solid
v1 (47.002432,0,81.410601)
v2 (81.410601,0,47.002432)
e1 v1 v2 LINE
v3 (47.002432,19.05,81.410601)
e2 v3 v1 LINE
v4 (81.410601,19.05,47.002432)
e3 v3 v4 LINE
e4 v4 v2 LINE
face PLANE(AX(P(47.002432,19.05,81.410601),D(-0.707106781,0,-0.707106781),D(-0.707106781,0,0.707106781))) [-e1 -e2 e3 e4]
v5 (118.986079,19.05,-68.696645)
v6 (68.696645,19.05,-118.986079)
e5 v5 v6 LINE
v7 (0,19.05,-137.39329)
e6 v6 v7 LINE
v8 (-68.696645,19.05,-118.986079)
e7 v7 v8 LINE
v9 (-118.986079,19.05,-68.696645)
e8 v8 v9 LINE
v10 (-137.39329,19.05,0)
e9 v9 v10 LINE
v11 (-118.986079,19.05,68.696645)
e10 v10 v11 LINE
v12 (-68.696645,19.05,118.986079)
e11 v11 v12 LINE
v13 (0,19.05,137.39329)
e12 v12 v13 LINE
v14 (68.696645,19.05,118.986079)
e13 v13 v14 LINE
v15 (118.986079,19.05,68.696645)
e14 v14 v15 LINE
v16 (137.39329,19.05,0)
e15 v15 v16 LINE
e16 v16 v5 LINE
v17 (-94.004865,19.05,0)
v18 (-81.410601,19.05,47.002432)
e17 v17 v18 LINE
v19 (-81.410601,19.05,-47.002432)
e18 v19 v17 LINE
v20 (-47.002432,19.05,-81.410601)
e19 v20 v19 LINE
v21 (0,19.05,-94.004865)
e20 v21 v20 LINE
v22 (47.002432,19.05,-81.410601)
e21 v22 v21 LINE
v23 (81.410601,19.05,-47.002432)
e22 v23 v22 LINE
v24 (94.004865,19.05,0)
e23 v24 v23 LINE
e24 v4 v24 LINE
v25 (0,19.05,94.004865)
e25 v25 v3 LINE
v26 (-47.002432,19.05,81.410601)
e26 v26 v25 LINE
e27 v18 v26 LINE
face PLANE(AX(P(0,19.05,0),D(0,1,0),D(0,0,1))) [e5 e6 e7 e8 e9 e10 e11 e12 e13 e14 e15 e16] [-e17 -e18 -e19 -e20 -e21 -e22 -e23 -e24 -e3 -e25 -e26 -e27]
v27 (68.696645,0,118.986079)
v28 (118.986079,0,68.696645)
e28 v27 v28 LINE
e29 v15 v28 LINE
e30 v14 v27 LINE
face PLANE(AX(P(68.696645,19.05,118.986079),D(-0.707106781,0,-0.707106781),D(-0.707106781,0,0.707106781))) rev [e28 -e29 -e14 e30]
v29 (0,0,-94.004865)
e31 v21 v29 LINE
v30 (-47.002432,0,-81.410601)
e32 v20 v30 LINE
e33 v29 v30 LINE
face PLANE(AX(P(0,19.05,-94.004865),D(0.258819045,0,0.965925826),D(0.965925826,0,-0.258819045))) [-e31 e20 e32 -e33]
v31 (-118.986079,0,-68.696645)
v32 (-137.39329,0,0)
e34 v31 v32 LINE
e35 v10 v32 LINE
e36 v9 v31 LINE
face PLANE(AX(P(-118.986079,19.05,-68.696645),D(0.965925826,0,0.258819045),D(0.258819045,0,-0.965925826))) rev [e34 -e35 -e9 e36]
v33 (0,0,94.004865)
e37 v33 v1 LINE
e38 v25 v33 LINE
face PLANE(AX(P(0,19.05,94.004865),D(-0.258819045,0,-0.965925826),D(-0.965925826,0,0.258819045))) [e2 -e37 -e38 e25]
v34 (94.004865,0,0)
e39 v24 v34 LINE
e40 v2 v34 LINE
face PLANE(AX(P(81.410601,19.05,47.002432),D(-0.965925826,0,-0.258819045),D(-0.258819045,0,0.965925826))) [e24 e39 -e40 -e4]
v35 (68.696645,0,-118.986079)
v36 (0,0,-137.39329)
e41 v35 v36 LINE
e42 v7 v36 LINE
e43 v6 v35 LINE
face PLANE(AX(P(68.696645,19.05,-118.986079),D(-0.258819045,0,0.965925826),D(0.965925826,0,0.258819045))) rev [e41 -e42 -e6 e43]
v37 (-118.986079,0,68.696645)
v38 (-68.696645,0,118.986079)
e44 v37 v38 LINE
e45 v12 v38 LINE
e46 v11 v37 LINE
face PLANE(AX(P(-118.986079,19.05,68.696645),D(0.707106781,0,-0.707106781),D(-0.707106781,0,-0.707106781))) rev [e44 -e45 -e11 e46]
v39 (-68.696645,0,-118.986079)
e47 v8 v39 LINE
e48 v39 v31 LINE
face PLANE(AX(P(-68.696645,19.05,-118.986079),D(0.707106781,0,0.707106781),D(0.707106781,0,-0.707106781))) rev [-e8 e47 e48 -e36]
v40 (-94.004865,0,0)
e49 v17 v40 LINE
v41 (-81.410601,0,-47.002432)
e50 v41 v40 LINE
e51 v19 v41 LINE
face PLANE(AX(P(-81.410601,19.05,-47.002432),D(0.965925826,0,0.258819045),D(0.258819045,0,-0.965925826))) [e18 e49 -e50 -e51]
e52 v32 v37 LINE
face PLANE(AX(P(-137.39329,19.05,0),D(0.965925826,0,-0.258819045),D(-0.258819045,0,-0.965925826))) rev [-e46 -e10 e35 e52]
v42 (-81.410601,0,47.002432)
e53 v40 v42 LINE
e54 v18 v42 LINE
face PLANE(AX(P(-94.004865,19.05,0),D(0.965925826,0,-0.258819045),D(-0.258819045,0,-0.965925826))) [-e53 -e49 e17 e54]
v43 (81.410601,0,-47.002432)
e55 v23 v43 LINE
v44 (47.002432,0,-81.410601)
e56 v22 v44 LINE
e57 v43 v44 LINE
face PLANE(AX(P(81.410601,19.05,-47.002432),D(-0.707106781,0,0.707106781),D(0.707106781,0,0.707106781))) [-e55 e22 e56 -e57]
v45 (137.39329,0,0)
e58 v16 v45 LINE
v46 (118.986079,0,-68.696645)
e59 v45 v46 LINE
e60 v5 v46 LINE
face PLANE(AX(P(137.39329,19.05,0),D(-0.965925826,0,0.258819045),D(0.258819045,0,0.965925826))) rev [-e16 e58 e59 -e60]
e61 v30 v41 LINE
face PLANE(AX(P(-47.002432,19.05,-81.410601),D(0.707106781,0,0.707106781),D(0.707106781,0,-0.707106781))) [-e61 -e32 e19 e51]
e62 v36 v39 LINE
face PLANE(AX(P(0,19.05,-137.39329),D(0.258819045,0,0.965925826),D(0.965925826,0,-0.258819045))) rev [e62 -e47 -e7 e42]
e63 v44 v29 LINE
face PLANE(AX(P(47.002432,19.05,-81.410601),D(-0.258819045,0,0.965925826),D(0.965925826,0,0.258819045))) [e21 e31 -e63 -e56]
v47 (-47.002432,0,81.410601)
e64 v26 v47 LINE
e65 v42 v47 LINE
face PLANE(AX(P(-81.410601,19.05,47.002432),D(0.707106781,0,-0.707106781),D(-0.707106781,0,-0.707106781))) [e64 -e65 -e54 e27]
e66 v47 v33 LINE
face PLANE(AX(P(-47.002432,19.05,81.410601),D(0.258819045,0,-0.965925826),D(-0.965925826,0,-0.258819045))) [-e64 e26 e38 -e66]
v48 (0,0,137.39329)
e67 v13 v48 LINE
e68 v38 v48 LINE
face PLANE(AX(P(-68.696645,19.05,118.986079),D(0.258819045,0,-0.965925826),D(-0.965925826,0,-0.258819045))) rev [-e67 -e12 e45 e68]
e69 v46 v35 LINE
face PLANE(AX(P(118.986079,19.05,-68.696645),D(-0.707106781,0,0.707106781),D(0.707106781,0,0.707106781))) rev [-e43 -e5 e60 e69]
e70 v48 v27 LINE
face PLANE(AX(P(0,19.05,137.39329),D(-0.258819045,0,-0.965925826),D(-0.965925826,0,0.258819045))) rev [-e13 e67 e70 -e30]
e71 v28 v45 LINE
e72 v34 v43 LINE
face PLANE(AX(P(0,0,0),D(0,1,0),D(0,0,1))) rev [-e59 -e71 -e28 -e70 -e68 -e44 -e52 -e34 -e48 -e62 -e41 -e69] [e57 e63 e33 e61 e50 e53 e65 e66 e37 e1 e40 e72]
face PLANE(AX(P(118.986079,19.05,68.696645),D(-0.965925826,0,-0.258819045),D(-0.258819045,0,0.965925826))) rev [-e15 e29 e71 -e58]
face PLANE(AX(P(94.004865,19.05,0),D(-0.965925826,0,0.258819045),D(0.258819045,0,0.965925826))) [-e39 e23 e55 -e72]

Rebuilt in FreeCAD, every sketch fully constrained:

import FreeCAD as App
import Part
import Sketcher

V = App.Vector
Q = App.Units.Quantity


def add_polygon(sketch, points):
    """Adds a closed chain of lines whose ends are joined by coincident constraints."""
    first, n = sketch.GeometryCount, len(points)
    for a, b in zip(points, points[1:] + points[:1]):
        sketch.addGeometry(Part.LineSegment(App.Vector(*a, 0), App.Vector(*b, 0)), False)
    for i in range(n):
        sketch.addConstraint(Sketcher.Constraint("Coincident", first + i, 2, first + (i + 1) % n, 1))

doc = App.newDocument("Part")
params = doc.addObject("Spreadsheet::Sheet", "Params")
for row, (alias, value) in enumerate([
    ("sketch1_length", "2.8 in"),
    ("pad1_length", "0.75 in"),
], start=1):
    params.set(f"A{row}", alias)
    params.set(f"B{row}", "=" + value)
    params.setAlias(f"B{row}", alias)

body = doc.addObject("PartDesign::Body", "Body")

sketch1 = doc.addObject("Sketcher::SketchObject", "Sketch")
body.addObject(sketch1)
sketch1.AttachmentSupport = (doc.XZ_Plane, [""])
sketch1.MapMode = "FlatFace"
add_polygon(sketch1, [(-137, 0), (-119, 69), (-69, 119), (0, 137), (69, 119), (119, 69), (137, 0), (119, -69), (69, -119), (0, -137), (-69, -119), (-119, -69)])
add_polygon(sketch1, [(-81, 47), (-94, 0), (-81, -47), (-47, -81), (0, -94), (47, -81), (81, -47), (94, 0), (81, 47), (47, 81), (0, 94), (-47, 81)])
sketch1.addConstraint([
    Sketcher.Constraint("Symmetric", 0, 2, 6, 2, -1, 1),
    Sketcher.Constraint("Symmetric", 1, 2, 7, 2, -1, 1),
    Sketcher.Constraint("Symmetric", 2, 2, 8, 2, -1, 1),
    Sketcher.Constraint("Symmetric", 3, 2, 9, 2, -1, 1),
    Sketcher.Constraint("Symmetric", 4, 2, 10, 2, -1, 1),
    Sketcher.Constraint("Symmetric", 5, 2, 11, 2, -1, 1),
    Sketcher.Constraint("Symmetric", 12, 2, 18, 2, -1, 1),
    Sketcher.Constraint("Symmetric", 13, 2, 19, 2, -1, 1),
    Sketcher.Constraint("Symmetric", 14, 2, 20, 2, -1, 1),
    Sketcher.Constraint("Symmetric", 15, 2, 21, 2, -1, 1),
    Sketcher.Constraint("Symmetric", 16, 2, 22, 2, -1, 1),
    Sketcher.Constraint("Symmetric", 17, 2, 23, 2, -1, 1),
    Sketcher.Constraint("Symmetric", 1, 2, 3, 2, -2),
    Sketcher.Constraint("Symmetric", 0, 2, 4, 2, -2),
    Sketcher.Constraint("Symmetric", 14, 2, 16, 2, -2),
    Sketcher.Constraint("Symmetric", 13, 2, 17, 2, -2),
    Sketcher.Constraint("PointOnObject", 2, 2, -2),
    Sketcher.Constraint("PointOnObject", 5, 2, -1),
    Sketcher.Constraint("PointOnObject", 12, 2, -1),
    Sketcher.Constraint("PointOnObject", 15, 2, -2),
    Sketcher.Constraint("Perpendicular", 0, 3),
    Sketcher.Constraint("Perpendicular", 1, 4),
    Sketcher.Constraint("Perpendicular", 9, 12),
    Sketcher.Constraint("Parallel", 10, 14),
    Sketcher.Constraint("Perpendicular", 12, 15),
    Sketcher.Constraint("Equal", 0, 1),
    Sketcher.Constraint("Equal", 1, 2),
    Sketcher.Constraint("Equal", 13, 14),
    Sketcher.Constraint("Equal", 14, 15),
    Sketcher.Constraint("Angle", 0, Q("75 deg")),
    Sketcher.Constraint("Distance", 0, Q("2.8 in")),
    Sketcher.Constraint("Distance", 12, Q("48.660499 mm")),
])
sketch1.setExpression("Constraints[54]", "Params.sketch1_length")
pad1 = doc.addObject("PartDesign::Pad", "Pad")
body.addObject(pad1)
pad1.Profile = sketch1
pad1.setExpression("Length", "Params.pad1_length")
pad1.Reversed = True

doc.recompute()
